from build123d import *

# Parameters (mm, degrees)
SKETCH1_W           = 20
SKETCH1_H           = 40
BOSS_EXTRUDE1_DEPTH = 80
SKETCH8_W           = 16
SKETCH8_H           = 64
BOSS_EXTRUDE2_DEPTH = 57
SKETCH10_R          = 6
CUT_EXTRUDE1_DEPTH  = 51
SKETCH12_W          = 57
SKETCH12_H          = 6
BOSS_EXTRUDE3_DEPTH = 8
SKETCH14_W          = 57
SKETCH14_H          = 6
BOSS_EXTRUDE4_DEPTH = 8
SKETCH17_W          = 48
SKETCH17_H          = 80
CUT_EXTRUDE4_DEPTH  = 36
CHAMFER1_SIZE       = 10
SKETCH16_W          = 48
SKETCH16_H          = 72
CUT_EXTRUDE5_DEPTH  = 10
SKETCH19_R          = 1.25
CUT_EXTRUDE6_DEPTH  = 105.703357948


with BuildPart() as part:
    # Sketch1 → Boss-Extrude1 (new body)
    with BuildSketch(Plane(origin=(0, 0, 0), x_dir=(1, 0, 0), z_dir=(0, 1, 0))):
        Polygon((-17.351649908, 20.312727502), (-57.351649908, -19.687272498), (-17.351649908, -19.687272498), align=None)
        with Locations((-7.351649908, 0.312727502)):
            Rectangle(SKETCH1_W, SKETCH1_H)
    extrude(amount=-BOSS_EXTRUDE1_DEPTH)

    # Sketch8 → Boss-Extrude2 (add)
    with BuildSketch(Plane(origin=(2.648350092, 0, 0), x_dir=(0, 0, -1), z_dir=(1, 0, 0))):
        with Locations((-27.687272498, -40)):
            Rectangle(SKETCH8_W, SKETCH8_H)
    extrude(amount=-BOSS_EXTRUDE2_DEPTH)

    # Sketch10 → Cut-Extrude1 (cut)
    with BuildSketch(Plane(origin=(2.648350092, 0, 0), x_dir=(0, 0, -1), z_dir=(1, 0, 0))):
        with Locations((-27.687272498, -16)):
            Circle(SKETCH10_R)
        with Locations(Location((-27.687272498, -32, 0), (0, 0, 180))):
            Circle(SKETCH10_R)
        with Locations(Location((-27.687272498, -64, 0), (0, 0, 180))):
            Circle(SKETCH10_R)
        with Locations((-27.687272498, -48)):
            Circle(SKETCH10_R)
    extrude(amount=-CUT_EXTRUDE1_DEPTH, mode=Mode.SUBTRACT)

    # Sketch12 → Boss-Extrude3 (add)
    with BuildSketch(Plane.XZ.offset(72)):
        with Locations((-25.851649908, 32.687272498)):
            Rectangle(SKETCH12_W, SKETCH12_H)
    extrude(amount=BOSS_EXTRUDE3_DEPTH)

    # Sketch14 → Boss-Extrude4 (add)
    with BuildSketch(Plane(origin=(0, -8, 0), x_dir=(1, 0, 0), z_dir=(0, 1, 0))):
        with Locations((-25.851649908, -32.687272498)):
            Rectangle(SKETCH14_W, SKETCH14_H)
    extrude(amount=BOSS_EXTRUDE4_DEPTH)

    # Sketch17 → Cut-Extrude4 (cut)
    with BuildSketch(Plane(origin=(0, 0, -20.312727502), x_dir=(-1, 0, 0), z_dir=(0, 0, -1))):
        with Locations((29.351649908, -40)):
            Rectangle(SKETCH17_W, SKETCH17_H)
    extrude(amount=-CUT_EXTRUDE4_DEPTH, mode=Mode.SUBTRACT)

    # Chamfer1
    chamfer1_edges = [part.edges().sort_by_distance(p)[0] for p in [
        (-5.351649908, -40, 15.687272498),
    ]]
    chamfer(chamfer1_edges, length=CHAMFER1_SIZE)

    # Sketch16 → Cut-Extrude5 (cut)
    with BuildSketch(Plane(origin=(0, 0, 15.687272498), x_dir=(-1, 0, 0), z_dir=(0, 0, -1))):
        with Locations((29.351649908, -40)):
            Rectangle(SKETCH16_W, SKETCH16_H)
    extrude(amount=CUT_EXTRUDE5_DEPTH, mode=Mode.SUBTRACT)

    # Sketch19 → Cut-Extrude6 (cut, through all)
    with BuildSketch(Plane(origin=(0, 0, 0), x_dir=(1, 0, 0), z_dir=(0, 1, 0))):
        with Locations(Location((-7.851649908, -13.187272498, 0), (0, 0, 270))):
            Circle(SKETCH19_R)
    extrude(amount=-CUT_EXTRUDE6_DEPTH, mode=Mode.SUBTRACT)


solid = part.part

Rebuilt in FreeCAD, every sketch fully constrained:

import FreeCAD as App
import Part
import Sketcher

V = App.Vector


def edges_at(feature, points):
    """Names of the edges that pass closest to the given points."""
    edges = feature.Shape.Edges
    near = lambda p: min(range(len(edges)), key=lambda i: edges[i].distToShape(Part.Vertex(*p))[0])
    return sorted({f"Edge{near(p) + 1}" for p in points})


def add_polygon(sketch, points):
    """Adds a closed chain of lines whose ends are joined by coincident constraints."""
    first, n = sketch.GeometryCount, len(points)
    for a, b in zip(points, points[1:] + points[:1]):
        sketch.addGeometry(Part.LineSegment(App.Vector(*a, 0), App.Vector(*b, 0)), False)
    for i in range(n):
        sketch.addConstraint(Sketcher.Constraint("Coincident", first + i, 2, first + (i + 1) % n, 1))

doc = App.newDocument("Part")
body = doc.addObject("PartDesign::Body", "Body")

sketch1 = body.newObject("Sketcher::SketchObject", "Sketch")
sketch1.AttachmentSupport = (doc.getObject("XZ_Plane"), [""])
sketch1.MapMode = "FlatFace"
add_polygon(sketch1, [(-17, -20), (-57, 20), (3, 20), (3, -20)])
sketch1.addConstraint([
    Sketcher.Constraint("Horizontal", 1),
    Sketcher.Constraint("Vertical", 2),
    Sketcher.Constraint("Horizontal", 3),
    Sketcher.Constraint("DistanceX", 1, 1, 1, 2, 60.0),
    Sketcher.Constraint("DistanceX", 3, 2, 3, 1, 20.0),
    Sketcher.Constraint("DistanceY", 2, 2, 2, 1, 40.0),
    Sketcher.Constraint("DistanceX", 0, 2, -1, 1, 57.35165),
    Sketcher.Constraint("DistanceY", -1, 1, 0, 2, 19.687272),
])
pad1 = body.newObject("PartDesign::Pad", "Pad")
pad1.Profile = sketch1
pad1.Length = 80

sketch2 = body.newObject("Sketcher::SketchObject", "Sketch001")
sketch2.AttachmentSupport = (doc.getObject("YZ_Plane"), [""])
sketch2.MapMode = "FlatFace"
sketch2.AttachmentOffset = App.Placement(V(0, 0, 2.64835), App.Rotation())
add_polygon(sketch2, [(-8, 36), (-72, 36), (-72, 20), (-8, 20)])
sketch2.addConstraint([
    Sketcher.Constraint("Horizontal", 0),
    Sketcher.Constraint("Vertical", 1),
    Sketcher.Constraint("Horizontal", 2),
    Sketcher.Constraint("Vertical", 3),
    Sketcher.Constraint("DistanceX", 0, 2, 0, 1, 64.0),
    Sketcher.Constraint("DistanceY", 1, 2, 1, 1, 16.0),
    Sketcher.Constraint("DistanceX", 0, 2, -1, 1, 72.0),
    Sketcher.Constraint("DistanceY", -1, 1, 0, 2, 35.687272),
])
pad2 = body.newObject("PartDesign::Pad", "Pad001")
pad2.Profile = sketch2
pad2.Length = 57
pad2.Reversed = True

sketch3 = body.newObject("Sketcher::SketchObject", "Sketch002")
sketch3.AttachmentSupport = (doc.getObject("YZ_Plane"), [""])
sketch3.MapMode = "FlatFace"
sketch3.AttachmentOffset = App.Placement(V(0, 0, 2.64835), App.Rotation())
sketch3.addGeometry([
    Part.Circle(V(-16, 28, 0), V(0, 0, 1), 6),
    Part.Circle(V(-32, 28, 0), V(0, 0, 1), 6),
    Part.Circle(V(-64, 28, 0), V(0, 0, 1), 6),
    Part.Circle(V(-48, 28, 0), V(0, 0, 1), 6),
], False)
sketch3.addConstraint([
    Sketcher.Constraint("Equal", 0, 1),
    Sketcher.Constraint("Equal", 1, 2),
    Sketcher.Constraint("Equal", 2, 3),
    Sketcher.Constraint("Horizontal", 0, 3, 1, 3),
    Sketcher.Constraint("Horizontal", 1, 3, 2, 3),
    Sketcher.Constraint("Horizontal", 2, 3, 3, 3),
    Sketcher.Constraint("Diameter", 0, 12.0),
    Sketcher.Constraint("DistanceX", 0, 3, -1, 1, 16.0),
    Sketcher.Constraint("DistanceX", 1, 3, -1, 1, 32.0),
    Sketcher.Constraint("DistanceX", 2, 3, -1, 1, 64.0),
    Sketcher.Constraint("DistanceX", 3, 3, -1, 1, 48.0),
    Sketcher.Constraint("DistanceY", -1, 1, 0, 3, 27.687272),
])
pocket1 = body.newObject("PartDesign::Pocket", "Pocket")
pocket1.Profile = sketch3
pocket1.Length = 51

sketch4 = body.newObject("Sketcher::SketchObject", "Sketch003")
sketch4.AttachmentSupport = (doc.getObject("XZ_Plane"), [""])
sketch4.MapMode = "FlatFace"
sketch4.AttachmentOffset = App.Placement(V(0, 0, 72), App.Rotation())
add_polygon(sketch4, [(-54, 36), (-54, 30), (3, 30), (3, 36)])
sketch4.addConstraint([
    Sketcher.Constraint("Vertical", 0),
    Sketcher.Constraint("Horizontal", 1),
    Sketcher.Constraint("Vertical", 2),
    Sketcher.Constraint("Horizontal", 3),
    Sketcher.Constraint("DistanceX", 1, 1, 1, 2, 57.0),
    Sketcher.Constraint("DistanceY", 0, 2, 0, 1, 6.0),
    Sketcher.Constraint("DistanceX", 0, 2, -1, 1, 54.35165),
    Sketcher.Constraint("DistanceY", -1, 1, 0, 2, 29.687272),
])
pad3 = body.newObject("PartDesign::Pad", "Pad002")
pad3.Profile = sketch4
pad3.Length = 8

sketch5 = body.newObject("Sketcher::SketchObject", "Sketch004")
sketch5.AttachmentSupport = (doc.getObject("XZ_Plane"), [""])
sketch5.MapMode = "FlatFace"
sketch5.AttachmentOffset = App.Placement(V(0, 0, 8), App.Rotation())
add_polygon(sketch5, [(-54, 30), (-54, 36), (3, 36), (3, 30)])
sketch5.addConstraint([
    Sketcher.Constraint("Vertical", 0),
    Sketcher.Constraint("Horizontal", 1),
    Sketcher.Constraint("Vertical", 2),
    Sketcher.Constraint("Horizontal", 3),
    Sketcher.Constraint("DistanceX", 1, 1, 1, 2, 57.0),
    Sketcher.Constraint("DistanceY", 0, 1, 0, 2, 6.0),
    Sketcher.Constraint("DistanceX", 0, 2, -1, 1, 54.35165),
    Sketcher.Constraint("DistanceY", -1, 1, 0, 2, 35.687272),
])
pad4 = body.newObject("PartDesign::Pad", "Pad003")
pad4.Profile = sketch5
pad4.Length = 8
pad4.Reversed = True

sketch6 = body.newObject("Sketcher::SketchObject", "Sketch005")
sketch6.AttachmentSupport = (doc.getObject("XY_Plane"), [""])
sketch6.MapMode = "FlatFace"
sketch6.AttachmentOffset = App.Placement(V(0, 0, -20.312728), App.Rotation())
add_polygon(sketch6, [(-5, 0), (-5, -80), (-53, -80), (-53, 0)])
sketch6.addConstraint([
    Sketcher.Constraint("Vertical", 0),
    Sketcher.Constraint("Horizontal", 1),
    Sketcher.Constraint("Vertical", 2),
    Sketcher.Constraint("Horizontal", 3),
    Sketcher.Constraint("PointOnObject", 2, 2, -1),
    Sketcher.Constraint("DistanceX", 1, 2, 1, 1, 48.0),
    Sketcher.Constraint("DistanceY", 0, 2, 0, 1, 80.0),
    Sketcher.Constraint("DistanceX", 0, 2, -1, 1, 5.35165),
])
pocket2 = body.newObject("PartDesign::Pocket", "Pocket001")
pocket2.Profile = sketch6
pocket2.Length = 36
pocket2.Reversed = True
doc.recompute()

chamfer = body.newObject("PartDesign::Chamfer", "Chamfer")
chamfer.Base = (pocket2, edges_at(pocket2, [(-5.352, -40, 15.687)]))
chamfer.Size = 10

sketch7 = body.newObject("Sketcher::SketchObject", "Sketch006")
sketch7.AttachmentSupport = (doc.getObject("XY_Plane"), [""])
sketch7.MapMode = "FlatFace"
sketch7.AttachmentOffset = App.Placement(V(0, 0, 15.687272), App.Rotation())
add_polygon(sketch7, [(-5, -4), (-5, -76), (-53, -76), (-53, -4)])
sketch7.addConstraint([
    Sketcher.Constraint("Vertical", 0),
    Sketcher.Constraint("Horizontal", 1),
    Sketcher.Constraint("Vertical", 2),
    Sketcher.Constraint("Horizontal", 3),
    Sketcher.Constraint("DistanceX", 1, 2, 1, 1, 48.0),
    Sketcher.Constraint("DistanceY", 0, 2, 0, 1, 72.0),
    Sketcher.Constraint("DistanceY", 0, 2, -1, 1, 76.0),
    Sketcher.Constraint("DistanceX", 0, 2, -1, 1, 5.35165),
])
pocket3 = body.newObject("PartDesign::Pocket", "Pocket002")
pocket3.Profile = sketch7
pocket3.Length = 10

sketch8 = body.newObject("Sketcher::SketchObject", "Sketch007")
sketch8.AttachmentSupport = (doc.getObject("XZ_Plane"), [""])
sketch8.MapMode = "FlatFace"
sketch8.addGeometry(Part.Circle(V(-7.9, 13.2, 0), V(0, 0, 1), 1.2), False)
sketch8.addConstraint([
    Sketcher.Constraint("Diameter", 0, 2.5),
    Sketcher.Constraint("DistanceX", 0, 3, -1, 1, 7.85165),
    Sketcher.Constraint("DistanceY", -1, 1, 0, 3, 13.187272),
])
pocket4 = body.newObject("PartDesign::Pocket", "Pocket003")
pocket4.Profile = sketch8
pocket4.Type = "ThroughAll"
pocket4.Reversed = True

doc.recompute()
